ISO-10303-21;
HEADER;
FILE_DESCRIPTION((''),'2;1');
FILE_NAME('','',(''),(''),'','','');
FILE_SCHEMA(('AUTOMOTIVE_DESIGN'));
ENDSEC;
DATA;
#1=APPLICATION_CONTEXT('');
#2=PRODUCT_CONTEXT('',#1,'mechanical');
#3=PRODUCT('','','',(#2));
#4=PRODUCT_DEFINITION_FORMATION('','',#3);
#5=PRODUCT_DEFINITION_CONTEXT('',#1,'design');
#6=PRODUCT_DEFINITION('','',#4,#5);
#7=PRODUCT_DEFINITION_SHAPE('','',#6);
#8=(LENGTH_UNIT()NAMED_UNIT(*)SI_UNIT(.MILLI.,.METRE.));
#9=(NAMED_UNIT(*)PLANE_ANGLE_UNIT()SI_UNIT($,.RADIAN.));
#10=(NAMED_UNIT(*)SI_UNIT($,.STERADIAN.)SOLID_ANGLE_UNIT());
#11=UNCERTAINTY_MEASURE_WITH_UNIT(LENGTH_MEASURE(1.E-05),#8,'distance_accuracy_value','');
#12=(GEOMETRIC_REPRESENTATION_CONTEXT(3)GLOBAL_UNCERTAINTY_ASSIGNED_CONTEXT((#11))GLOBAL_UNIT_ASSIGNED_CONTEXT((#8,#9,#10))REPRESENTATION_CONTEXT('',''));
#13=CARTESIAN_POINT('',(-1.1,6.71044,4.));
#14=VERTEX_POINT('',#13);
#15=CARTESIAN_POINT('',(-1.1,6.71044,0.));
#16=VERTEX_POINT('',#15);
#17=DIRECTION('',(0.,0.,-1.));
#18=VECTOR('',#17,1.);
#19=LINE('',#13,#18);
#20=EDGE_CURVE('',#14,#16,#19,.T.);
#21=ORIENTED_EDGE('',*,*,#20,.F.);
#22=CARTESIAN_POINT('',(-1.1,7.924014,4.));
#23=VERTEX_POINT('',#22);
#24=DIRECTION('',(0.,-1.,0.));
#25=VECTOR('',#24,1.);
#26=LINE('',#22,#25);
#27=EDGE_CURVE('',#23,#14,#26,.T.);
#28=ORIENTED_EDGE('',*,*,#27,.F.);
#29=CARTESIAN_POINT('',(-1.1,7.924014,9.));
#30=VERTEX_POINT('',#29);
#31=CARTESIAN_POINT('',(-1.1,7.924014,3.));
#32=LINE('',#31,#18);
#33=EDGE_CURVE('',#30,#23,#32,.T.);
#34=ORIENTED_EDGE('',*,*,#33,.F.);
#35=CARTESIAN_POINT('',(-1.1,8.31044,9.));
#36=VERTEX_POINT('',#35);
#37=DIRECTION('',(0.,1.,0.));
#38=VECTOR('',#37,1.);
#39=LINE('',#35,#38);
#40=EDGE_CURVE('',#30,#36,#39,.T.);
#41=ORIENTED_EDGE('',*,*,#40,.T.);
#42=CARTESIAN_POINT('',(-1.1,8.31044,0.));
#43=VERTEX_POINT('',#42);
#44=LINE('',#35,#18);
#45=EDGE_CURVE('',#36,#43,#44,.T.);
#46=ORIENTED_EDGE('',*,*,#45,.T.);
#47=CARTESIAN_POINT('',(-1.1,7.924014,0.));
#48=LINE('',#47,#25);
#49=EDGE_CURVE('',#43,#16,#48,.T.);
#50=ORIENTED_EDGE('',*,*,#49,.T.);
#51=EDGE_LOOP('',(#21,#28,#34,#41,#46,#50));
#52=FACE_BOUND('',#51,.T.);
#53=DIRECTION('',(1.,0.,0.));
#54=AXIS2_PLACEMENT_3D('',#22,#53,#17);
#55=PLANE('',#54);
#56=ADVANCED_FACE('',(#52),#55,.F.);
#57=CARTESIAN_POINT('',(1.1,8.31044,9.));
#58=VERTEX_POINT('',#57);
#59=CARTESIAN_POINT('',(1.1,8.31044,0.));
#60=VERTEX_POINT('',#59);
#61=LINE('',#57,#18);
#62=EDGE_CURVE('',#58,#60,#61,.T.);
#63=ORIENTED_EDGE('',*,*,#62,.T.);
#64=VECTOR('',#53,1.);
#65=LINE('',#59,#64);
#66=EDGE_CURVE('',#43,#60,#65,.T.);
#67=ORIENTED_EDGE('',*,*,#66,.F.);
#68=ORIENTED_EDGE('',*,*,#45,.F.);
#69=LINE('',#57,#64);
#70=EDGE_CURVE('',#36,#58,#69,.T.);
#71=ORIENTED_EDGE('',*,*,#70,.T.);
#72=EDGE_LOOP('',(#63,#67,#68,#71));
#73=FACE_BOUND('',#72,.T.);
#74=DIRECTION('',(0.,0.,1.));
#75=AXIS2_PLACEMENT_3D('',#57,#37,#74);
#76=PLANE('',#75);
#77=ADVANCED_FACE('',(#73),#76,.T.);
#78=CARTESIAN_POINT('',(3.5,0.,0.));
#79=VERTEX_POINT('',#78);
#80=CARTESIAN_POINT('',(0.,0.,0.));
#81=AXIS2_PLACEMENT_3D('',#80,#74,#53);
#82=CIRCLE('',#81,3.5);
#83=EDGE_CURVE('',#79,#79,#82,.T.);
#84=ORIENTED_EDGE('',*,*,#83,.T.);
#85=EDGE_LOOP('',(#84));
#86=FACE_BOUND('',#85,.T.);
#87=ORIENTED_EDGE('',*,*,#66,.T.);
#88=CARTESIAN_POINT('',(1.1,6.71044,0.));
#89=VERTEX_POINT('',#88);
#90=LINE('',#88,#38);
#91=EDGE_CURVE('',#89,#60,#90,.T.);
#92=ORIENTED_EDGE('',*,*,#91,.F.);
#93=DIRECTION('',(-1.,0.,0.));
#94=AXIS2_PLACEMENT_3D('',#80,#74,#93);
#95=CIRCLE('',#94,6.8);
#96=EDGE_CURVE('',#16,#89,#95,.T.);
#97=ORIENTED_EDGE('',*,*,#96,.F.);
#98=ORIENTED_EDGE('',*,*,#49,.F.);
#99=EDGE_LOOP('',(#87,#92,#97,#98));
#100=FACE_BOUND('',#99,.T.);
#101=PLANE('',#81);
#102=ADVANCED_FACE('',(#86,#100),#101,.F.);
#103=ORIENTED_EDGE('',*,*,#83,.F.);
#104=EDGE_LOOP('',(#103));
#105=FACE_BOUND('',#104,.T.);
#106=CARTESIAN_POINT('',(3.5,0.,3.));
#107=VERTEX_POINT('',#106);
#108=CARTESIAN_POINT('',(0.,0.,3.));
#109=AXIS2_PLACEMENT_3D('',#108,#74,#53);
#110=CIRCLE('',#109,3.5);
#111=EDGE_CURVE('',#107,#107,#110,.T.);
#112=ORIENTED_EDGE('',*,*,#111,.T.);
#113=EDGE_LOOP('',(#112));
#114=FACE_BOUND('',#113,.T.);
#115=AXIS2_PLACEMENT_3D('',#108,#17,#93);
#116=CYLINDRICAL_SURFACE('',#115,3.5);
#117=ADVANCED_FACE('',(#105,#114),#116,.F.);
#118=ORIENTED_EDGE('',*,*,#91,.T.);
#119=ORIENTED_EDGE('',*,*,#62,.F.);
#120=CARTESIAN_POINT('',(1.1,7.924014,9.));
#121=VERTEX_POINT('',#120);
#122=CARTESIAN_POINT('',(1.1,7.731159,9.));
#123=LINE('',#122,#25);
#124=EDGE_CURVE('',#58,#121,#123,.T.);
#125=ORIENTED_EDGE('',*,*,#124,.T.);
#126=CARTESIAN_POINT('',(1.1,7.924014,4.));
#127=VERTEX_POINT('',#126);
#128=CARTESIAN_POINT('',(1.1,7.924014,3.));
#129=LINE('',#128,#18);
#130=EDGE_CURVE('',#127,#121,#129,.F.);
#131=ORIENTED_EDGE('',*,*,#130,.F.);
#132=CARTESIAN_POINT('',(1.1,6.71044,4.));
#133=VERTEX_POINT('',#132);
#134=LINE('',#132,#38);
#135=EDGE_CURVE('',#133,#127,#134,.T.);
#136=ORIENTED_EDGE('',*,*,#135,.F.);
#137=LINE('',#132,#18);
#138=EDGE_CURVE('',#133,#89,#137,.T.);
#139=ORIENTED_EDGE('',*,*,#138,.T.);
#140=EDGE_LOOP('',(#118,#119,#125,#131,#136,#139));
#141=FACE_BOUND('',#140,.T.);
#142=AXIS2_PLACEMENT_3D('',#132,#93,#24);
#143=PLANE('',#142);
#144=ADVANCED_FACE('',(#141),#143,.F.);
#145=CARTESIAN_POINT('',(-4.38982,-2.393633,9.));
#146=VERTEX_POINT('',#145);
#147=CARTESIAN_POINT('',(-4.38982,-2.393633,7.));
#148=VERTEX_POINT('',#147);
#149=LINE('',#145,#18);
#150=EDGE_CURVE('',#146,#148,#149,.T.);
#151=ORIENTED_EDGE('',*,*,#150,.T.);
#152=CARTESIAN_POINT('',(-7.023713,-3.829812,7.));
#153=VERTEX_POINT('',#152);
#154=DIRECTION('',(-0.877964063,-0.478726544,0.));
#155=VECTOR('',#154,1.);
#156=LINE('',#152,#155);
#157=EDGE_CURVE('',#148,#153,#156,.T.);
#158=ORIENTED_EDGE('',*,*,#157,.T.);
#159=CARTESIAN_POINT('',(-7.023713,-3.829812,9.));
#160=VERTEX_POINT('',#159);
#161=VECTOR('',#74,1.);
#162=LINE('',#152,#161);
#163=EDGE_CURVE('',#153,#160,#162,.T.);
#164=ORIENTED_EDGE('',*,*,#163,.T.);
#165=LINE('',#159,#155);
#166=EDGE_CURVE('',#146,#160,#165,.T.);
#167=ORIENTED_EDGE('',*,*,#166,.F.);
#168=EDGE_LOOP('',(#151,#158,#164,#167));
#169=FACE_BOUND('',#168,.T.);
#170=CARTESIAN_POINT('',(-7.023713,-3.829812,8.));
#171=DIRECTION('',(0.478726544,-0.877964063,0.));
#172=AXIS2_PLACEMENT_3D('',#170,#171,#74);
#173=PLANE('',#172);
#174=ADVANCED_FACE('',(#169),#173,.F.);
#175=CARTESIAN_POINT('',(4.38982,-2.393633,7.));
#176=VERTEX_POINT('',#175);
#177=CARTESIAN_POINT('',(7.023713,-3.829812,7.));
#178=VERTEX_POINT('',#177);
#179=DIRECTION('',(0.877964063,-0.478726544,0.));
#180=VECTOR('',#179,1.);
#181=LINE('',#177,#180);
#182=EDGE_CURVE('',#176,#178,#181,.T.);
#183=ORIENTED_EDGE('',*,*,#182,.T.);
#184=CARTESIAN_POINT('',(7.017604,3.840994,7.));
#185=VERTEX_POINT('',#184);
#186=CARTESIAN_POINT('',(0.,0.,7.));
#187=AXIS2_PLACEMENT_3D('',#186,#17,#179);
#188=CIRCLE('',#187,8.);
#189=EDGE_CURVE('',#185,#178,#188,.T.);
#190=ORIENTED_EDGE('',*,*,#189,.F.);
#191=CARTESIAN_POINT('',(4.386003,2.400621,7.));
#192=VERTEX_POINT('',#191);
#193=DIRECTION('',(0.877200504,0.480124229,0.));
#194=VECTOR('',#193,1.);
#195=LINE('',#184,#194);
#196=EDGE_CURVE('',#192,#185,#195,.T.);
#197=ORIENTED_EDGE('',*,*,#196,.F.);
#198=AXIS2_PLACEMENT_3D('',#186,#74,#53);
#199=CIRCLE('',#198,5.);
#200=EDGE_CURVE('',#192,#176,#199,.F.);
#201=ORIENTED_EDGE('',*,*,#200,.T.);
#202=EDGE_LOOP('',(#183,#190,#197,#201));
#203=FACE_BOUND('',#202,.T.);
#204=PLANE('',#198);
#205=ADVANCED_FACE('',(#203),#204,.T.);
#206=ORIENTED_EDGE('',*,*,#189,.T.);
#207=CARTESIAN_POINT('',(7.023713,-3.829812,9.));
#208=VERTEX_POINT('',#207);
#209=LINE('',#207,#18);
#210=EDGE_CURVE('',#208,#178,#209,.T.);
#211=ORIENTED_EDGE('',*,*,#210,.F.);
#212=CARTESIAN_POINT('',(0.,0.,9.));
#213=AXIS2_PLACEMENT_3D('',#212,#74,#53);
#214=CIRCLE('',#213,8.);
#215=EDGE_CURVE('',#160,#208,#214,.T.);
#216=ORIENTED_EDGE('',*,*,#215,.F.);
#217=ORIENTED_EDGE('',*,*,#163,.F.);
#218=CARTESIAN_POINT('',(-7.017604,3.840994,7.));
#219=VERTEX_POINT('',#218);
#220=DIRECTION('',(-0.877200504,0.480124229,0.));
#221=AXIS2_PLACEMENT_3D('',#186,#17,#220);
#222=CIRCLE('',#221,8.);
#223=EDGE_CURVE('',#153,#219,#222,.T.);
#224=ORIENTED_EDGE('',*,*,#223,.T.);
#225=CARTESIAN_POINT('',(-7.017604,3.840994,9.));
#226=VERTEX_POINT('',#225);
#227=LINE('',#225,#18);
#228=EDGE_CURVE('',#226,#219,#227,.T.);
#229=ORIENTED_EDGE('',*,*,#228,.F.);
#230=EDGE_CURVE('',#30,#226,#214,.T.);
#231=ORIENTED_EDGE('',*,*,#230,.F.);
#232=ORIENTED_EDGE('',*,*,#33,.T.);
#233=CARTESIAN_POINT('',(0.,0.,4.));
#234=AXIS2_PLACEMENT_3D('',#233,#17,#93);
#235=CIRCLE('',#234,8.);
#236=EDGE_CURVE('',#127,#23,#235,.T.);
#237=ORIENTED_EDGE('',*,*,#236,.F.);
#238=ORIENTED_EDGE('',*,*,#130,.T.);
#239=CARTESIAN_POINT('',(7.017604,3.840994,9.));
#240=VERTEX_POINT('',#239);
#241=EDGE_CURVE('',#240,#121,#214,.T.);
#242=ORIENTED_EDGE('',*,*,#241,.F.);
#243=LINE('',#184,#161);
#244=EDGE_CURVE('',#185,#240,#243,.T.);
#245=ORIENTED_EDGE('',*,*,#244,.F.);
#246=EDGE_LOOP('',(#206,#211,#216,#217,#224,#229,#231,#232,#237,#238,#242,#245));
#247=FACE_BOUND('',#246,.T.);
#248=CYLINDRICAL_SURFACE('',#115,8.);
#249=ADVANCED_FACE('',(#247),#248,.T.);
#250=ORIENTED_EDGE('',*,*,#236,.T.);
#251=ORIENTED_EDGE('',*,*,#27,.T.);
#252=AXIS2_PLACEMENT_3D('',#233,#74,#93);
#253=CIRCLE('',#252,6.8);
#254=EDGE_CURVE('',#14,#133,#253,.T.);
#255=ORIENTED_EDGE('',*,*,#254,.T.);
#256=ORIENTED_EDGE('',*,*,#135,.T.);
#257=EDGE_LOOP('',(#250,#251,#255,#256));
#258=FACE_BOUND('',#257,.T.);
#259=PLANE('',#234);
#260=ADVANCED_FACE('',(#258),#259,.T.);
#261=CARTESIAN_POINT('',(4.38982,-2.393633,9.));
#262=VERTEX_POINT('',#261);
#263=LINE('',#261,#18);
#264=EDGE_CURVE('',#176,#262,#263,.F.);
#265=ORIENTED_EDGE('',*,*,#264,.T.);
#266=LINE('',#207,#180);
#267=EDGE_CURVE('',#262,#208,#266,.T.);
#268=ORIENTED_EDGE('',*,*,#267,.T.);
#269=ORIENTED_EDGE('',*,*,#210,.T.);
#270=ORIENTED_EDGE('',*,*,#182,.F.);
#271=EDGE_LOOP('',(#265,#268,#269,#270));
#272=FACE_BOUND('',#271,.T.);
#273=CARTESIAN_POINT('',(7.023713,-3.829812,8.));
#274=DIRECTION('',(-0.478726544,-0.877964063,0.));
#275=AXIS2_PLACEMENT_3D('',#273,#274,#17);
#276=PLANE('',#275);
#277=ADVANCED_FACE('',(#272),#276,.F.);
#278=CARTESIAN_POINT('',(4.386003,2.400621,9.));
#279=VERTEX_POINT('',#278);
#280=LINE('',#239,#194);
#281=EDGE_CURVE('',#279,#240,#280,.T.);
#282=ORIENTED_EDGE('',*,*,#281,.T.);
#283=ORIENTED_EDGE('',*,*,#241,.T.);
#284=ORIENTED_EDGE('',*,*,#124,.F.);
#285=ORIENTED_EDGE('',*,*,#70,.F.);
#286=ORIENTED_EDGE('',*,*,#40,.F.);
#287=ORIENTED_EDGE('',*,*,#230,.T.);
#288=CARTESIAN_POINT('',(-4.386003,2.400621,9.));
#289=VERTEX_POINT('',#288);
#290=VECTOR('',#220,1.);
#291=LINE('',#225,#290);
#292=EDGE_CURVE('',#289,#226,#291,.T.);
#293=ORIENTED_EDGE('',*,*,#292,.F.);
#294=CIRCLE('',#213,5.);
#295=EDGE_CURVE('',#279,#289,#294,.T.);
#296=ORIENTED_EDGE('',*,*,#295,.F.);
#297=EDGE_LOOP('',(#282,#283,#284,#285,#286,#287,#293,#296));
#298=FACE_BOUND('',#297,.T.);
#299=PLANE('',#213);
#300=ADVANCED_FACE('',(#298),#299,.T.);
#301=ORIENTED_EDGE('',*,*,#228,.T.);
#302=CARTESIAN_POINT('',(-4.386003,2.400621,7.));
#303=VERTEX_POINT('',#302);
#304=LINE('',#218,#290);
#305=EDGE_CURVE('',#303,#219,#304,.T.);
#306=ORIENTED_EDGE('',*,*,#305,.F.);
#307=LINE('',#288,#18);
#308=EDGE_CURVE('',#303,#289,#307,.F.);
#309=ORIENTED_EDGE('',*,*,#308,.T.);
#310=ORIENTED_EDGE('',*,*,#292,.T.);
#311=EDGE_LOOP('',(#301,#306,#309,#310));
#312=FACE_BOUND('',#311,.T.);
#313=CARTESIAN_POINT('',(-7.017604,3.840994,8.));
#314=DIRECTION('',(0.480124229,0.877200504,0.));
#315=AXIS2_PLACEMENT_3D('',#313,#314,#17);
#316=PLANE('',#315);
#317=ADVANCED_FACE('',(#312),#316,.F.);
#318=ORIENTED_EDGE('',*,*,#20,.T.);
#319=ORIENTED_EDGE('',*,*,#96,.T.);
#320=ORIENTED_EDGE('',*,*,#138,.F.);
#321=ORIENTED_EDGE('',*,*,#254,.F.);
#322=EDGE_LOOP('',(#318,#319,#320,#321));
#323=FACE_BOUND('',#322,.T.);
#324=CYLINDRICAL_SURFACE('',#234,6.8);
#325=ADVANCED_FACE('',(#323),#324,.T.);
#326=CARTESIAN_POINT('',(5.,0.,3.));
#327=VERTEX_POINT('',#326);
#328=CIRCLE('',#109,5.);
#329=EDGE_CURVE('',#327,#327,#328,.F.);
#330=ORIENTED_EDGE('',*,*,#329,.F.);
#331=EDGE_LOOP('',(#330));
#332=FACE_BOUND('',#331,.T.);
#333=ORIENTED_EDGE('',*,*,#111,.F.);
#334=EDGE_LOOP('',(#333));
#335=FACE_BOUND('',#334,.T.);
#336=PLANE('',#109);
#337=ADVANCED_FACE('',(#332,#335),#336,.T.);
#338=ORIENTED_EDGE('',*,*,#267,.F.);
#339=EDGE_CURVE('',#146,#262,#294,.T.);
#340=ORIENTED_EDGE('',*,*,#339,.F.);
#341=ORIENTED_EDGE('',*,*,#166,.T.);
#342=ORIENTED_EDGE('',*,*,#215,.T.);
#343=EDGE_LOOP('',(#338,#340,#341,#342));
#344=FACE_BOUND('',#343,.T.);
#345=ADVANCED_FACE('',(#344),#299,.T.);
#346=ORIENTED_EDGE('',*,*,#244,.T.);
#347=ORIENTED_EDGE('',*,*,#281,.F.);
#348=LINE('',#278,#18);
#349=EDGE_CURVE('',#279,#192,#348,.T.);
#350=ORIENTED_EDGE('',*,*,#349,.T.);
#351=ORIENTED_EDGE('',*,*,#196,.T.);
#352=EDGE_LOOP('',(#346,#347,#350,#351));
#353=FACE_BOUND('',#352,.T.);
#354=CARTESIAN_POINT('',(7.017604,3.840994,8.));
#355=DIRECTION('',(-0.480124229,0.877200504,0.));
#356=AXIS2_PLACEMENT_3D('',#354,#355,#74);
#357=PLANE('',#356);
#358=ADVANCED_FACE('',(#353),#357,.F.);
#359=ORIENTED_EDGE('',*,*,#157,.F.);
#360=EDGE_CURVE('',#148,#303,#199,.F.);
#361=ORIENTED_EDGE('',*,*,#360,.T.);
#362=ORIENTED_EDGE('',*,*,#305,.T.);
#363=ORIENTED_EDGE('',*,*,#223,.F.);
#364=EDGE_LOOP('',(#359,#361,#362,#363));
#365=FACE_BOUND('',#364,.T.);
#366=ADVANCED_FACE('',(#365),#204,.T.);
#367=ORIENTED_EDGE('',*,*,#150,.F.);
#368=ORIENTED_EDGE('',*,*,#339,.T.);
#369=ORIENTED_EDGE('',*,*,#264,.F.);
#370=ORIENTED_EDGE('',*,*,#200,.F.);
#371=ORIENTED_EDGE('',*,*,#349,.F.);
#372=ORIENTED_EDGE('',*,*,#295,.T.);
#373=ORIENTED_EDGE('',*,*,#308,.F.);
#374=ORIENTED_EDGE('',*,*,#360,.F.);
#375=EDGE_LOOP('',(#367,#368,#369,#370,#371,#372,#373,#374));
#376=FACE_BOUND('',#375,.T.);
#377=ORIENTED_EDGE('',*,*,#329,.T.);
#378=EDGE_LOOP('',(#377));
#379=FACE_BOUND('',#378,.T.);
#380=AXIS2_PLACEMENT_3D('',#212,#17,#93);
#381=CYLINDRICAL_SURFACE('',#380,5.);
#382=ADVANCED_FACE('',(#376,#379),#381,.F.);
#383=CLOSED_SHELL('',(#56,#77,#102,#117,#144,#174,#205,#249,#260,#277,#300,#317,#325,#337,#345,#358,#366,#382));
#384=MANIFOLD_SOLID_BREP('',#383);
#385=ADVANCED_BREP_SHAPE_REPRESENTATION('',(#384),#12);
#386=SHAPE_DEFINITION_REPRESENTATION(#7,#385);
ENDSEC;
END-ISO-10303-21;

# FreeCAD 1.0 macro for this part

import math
import FreeCAD as App
import Part
import Sketcher
from FreeCAD import Vector
Q = App.Units.Quantity

doc = App.newDocument("Part")
params = doc.addObject("Spreadsheet::Sheet", "Params")
for row, (alias, value) in enumerate([
    ("sketch1_diameter", "16 mm"),
    ("sketch1_diameter2", "7 mm"),
    ("pad1_length", "3 mm"),
    ("sketch2_diameter", "16 mm"),
    ("sketch2_diameter2", "10 mm"),
    ("pad2_length", "6 mm"),
    ("sketch3_width", "4 mm"),
    ("sketch3_height", "2 mm"),
    ("groove_angle", "57.29578 deg"),
    ("sketch4_width", "4 mm"),
    ("sketch4_height", "2 mm"),
    ("groove2_angle", "57.29578 deg"),
    ("sketch5_radius", "8 mm"),
    ("sketch5_radius2", "6.8 mm"),
    ("pocket1_length", "4 mm"),
    ("sketch6_radius", "8 mm"),
    ("sketch6_width", "2.2 mm"),
    ("pad3_length", "9 mm"),
], start=1):
    params.set(f"A{row}", alias)
    params.set(f"B{row}", "=" + value)
    params.setAlias(f"B{row}", alias)

body = doc.addObject("PartDesign::Body", "Body")

sketch1 = body.newObject("Sketcher::SketchObject", "Sketch")
sketch1.AttachmentSupport = (doc.getObject("XY_Plane"), [""])
sketch1.MapMode = "FlatFace"
sketch1.addGeometry([
    Part.Circle(Vector(0, 0, 0), Vector(0, 0, 1), 8),
    Part.Circle(Vector(0, 0, 0), Vector(0, 0, 1), 3.5),
], False)
sketch1.addConstraint([
    Sketcher.Constraint("Coincident", 0, 3, -1, 1),
    Sketcher.Constraint("Coincident", 1, 3, -1, 1),
    Sketcher.Constraint("Diameter", 0, Q("16 mm")),
    Sketcher.Constraint("Diameter", 1, Q("7 mm")),
])
sketch1.setExpression("Constraints[2]", "Params.sketch1_diameter")
sketch1.setExpression("Constraints[3]", "Params.sketch1_diameter2")
pad1 = body.newObject("PartDesign::Pad", "Pad")
pad1.Profile = sketch1
pad1.setExpression("Length", "Params.pad1_length")

sketch2 = body.newObject("Sketcher::SketchObject", "Sketch001")
sketch2.AttachmentSupport = (doc.getObject("XY_Plane"), [""])
sketch2.MapMode = "FlatFace"
sketch2.AttachmentOffset = App.Placement(Vector(0, 0, 3), App.Rotation())
sketch2.addGeometry([
    Part.Circle(Vector(0, 0, 0), Vector(0, 0, 1), 8),
    Part.Circle(Vector(0, 0, 0), Vector(0, 0, 1), 5),
], False)
sketch2.addConstraint([
    Sketcher.Constraint("Coincident", 0, 3, -1, 1),
    Sketcher.Constraint("Coincident", 1, 3, -1, 1),
    Sketcher.Constraint("Diameter", 0, Q("16 mm")),
    Sketcher.Constraint("Diameter", 1, Q("10 mm")),
])
sketch2.setExpression("Constraints[2]", "Params.sketch2_diameter")
sketch2.setExpression("Constraints[3]", "Params.sketch2_diameter2")
pad2 = body.newObject("PartDesign::Pad", "Pad001")
pad2.Profile = sketch2
pad2.setExpression("Length", "Params.pad2_length")

sketch3 = body.newObject("Sketcher::SketchObject", "Sketch002")
sketch3.Placement = App.Placement(Vector(0, 0, 0), App.Rotation(Vector(-0.877964063, -0.478726544, 0), Vector(0, 0, -1), Vector(0.478726544, -0.877964063, 0), "ZXY"))
sketch3.addGeometry([
    Part.LineSegment(Vector(4, -7, 0), Vector(4, -9, 0)),
    Part.LineSegment(Vector(4, -9, 0), Vector(8, -9, 0)),
    Part.LineSegment(Vector(8, -9, 0), Vector(8, -7, 0)),
    Part.LineSegment(Vector(8, -7, 0), Vector(4, -7, 0)),
], False)
sketch3.addConstraint([
    Sketcher.Constraint("Coincident", 0, 2, 1, 1),
    Sketcher.Constraint("Coincident", 1, 2, 2, 1),
    Sketcher.Constraint("Coincident", 2, 2, 3, 1),
    Sketcher.Constraint("Coincident", 3, 2, 0, 1),
    Sketcher.Constraint("Vertical", 0),
    Sketcher.Constraint("Horizontal", 1),
    Sketcher.Constraint("Vertical", 2),
    Sketcher.Constraint("Horizontal", 3),
    Sketcher.Constraint("DistanceX", 1, 1, 1, 2, Q("4 mm")),
    Sketcher.Constraint("DistanceY", 0, 2, 0, 1, Q("2 mm")),
    Sketcher.Constraint("DistanceX", -1, 1, 0, 2, Q("4 mm")),
    Sketcher.Constraint("DistanceY", 0, 2, -1, 1, Q("9 mm")),
])
sketch3.setExpression("Constraints[8]", "Params.sketch3_width")
sketch3.setExpression("Constraints[9]", "Params.sketch3_height")
groove = body.newObject("PartDesign::Groove", "Groove")
groove.Profile = sketch3
groove.ReferenceAxis = (sketch3, ["V_Axis"])
groove.setExpression("Angle", "Params.groove_angle")

sketch4 = body.newObject("Sketcher::SketchObject", "Sketch003")
sketch4.Placement = App.Placement(Vector(0, 0, 0), App.Rotation(Vector(0.877200504, 0.480124229, 0), Vector(0, 0, -0.999999999), Vector(-0.480124229, 0.877200504, 0), "ZXY"))
sketch4.addGeometry([
    Part.LineSegment(Vector(4, -7, 0), Vector(4, -9, 0)),
    Part.LineSegment(Vector(4, -9, 0), Vector(8, -9, 0)),
    Part.LineSegment(Vector(8, -9, 0), Vector(8, -7, 0)),
    Part.LineSegment(Vector(8, -7, 0), Vector(4, -7, 0)),
], False)
sketch4.addConstraint([
    Sketcher.Constraint("Coincident", 0, 2, 1, 1),
    Sketcher.Constraint("Coincident", 1, 2, 2, 1),
    Sketcher.Constraint("Coincident", 2, 2, 3, 1),
    Sketcher.Constraint("Coincident", 3, 2, 0, 1),
    Sketcher.Constraint("Vertical", 0),
    Sketcher.Constraint("Horizontal", 1),
    Sketcher.Constraint("Vertical", 2),
    Sketcher.Constraint("Horizontal", 3),
    Sketcher.Constraint("DistanceX", 1, 1, 1, 2, Q("4 mm")),
    Sketcher.Constraint("DistanceY", 0, 2, 0, 1, Q("2 mm")),
    Sketcher.Constraint("DistanceX", -1, 1, 0, 2, Q("4 mm")),
    Sketcher.Constraint("DistanceY", 0, 2, -1, 1, Q("9 mm")),
])
sketch4.setExpression("Constraints[8]", "Params.sketch4_width")
sketch4.setExpression("Constraints[9]", "Params.sketch4_height")
groove2 = body.newObject("PartDesign::Groove", "Groove001")
groove2.Profile = sketch4
groove2.ReferenceAxis = (sketch4, ["V_Axis"])
groove2.setExpression("Angle", "Params.groove2_angle")

sketch5 = body.newObject("Sketcher::SketchObject", "Sketch004")
sketch5.AttachmentSupport = (doc.getObject("XY_Plane"), [""])
sketch5.MapMode = "FlatFace"
sketch5.addGeometry([
    Part.LineSegment(Vector(1.1, 6.7, 0), Vector(1.1, 7.9, 0)),
    Part.ArcOfCircle(Part.Circle(Vector(0, 0, 0), Vector(0, 0, 1), 8), math.radians(98), math.radians(442)),
    Part.LineSegment(Vector(-1.1, 7.9, 0), Vector(-1.1, 6.7, 0)),
    Part.ArcOfCircle(Part.Circle(Vector(0, 0, 0), Vector(0, 0, 1), 6.8), math.radians(99), math.radians(441)),
], False)
sketch5.addConstraint([
    Sketcher.Constraint("Coincident", 0, 2, 1, 2),
    Sketcher.Constraint("Coincident", 1, 1, 2, 1),
    Sketcher.Constraint("Coincident", 2, 2, 3, 1),
    Sketcher.Constraint("Coincident", 3, 2, 0, 1),
    Sketcher.Constraint("Vertical", 0),
    Sketcher.Constraint("Vertical", 2),
    Sketcher.Constraint("Coincident", 1, 3, -1, 1),
    Sketcher.Constraint("Coincident", 3, 3, -1, 1),
    Sketcher.Constraint("Horizontal", 0, 2, 1, 1),
    Sketcher.Constraint("Radius", 1, Q("8 mm")),
    Sketcher.Constraint("Radius", 3, Q("6.8 mm")),
    Sketcher.Constraint("DistanceX", -1, 1, 0, 2, Q("1.1 mm")),
])
sketch5.setExpression("Constraints[9]", "Params.sketch5_radius")
sketch5.setExpression("Constraints[10]", "Params.sketch5_radius2")
pocket1 = body.newObject("PartDesign::Pocket", "Pocket")
pocket1.Profile = sketch5
pocket1.setExpression("Length", "Params.pocket1_length")
pocket1.Reversed = True

sketch6 = body.newObject("Sketcher::SketchObject", "Sketch005")
sketch6.AttachmentSupport = (doc.getObject("XY_Plane"), [""])
sketch6.MapMode = "FlatFace"
sketch6.addGeometry([
    Part.LineSegment(Vector(1.1, 8.3, 0), Vector(1.1, 7.7, 0)),
    Part.ArcOfCircle(Part.Circle(Vector(0, -0.2, 0), Vector(0, 0, 1), 8), math.radians(82.1), math.radians(97.9)),
    Part.LineSegment(Vector(-1.1, 7.7, 0), Vector(-1.1, 8.3, 0)),
    Part.LineSegment(Vector(-1.1, 8.3, 0), Vector(1.1, 8.3, 0)),
], False)
sketch6.addConstraint([
    Sketcher.Constraint("Coincident", 0, 2, 1, 1),
    Sketcher.Constraint("Coincident", 1, 2, 2, 1),
    Sketcher.Constraint("Coincident", 2, 2, 3, 1),
    Sketcher.Constraint("Coincident", 3, 2, 0, 1),
    Sketcher.Constraint("Vertical", 0),
    Sketcher.Constraint("Vertical", 2),
    Sketcher.Constraint("Horizontal", 3),
    Sketcher.Constraint("Symmetric", 0, 2, 1, 2, -2),
    Sketcher.Constraint("Radius", 1, Q("8 mm")),
    Sketcher.Constraint("DistanceX", 3, 1, 3, 2, Q("2.2 mm")),
    Sketcher.Constraint("DistanceY", 0, 2, 0, 1, Q("0.57928 mm")),
    Sketcher.Constraint("DistanceY", -1, 1, 0, 2, Q("7.731159 mm")),
])
sketch6.setExpression("Constraints[8]", "Params.sketch6_radius")
sketch6.setExpression("Constraints[9]", "Params.sketch6_width")
pad3 = body.newObject("PartDesign::Pad", "Pad002")
pad3.Profile = sketch6
pad3.setExpression("Length", "Params.pad3_length")

doc.recompute()
